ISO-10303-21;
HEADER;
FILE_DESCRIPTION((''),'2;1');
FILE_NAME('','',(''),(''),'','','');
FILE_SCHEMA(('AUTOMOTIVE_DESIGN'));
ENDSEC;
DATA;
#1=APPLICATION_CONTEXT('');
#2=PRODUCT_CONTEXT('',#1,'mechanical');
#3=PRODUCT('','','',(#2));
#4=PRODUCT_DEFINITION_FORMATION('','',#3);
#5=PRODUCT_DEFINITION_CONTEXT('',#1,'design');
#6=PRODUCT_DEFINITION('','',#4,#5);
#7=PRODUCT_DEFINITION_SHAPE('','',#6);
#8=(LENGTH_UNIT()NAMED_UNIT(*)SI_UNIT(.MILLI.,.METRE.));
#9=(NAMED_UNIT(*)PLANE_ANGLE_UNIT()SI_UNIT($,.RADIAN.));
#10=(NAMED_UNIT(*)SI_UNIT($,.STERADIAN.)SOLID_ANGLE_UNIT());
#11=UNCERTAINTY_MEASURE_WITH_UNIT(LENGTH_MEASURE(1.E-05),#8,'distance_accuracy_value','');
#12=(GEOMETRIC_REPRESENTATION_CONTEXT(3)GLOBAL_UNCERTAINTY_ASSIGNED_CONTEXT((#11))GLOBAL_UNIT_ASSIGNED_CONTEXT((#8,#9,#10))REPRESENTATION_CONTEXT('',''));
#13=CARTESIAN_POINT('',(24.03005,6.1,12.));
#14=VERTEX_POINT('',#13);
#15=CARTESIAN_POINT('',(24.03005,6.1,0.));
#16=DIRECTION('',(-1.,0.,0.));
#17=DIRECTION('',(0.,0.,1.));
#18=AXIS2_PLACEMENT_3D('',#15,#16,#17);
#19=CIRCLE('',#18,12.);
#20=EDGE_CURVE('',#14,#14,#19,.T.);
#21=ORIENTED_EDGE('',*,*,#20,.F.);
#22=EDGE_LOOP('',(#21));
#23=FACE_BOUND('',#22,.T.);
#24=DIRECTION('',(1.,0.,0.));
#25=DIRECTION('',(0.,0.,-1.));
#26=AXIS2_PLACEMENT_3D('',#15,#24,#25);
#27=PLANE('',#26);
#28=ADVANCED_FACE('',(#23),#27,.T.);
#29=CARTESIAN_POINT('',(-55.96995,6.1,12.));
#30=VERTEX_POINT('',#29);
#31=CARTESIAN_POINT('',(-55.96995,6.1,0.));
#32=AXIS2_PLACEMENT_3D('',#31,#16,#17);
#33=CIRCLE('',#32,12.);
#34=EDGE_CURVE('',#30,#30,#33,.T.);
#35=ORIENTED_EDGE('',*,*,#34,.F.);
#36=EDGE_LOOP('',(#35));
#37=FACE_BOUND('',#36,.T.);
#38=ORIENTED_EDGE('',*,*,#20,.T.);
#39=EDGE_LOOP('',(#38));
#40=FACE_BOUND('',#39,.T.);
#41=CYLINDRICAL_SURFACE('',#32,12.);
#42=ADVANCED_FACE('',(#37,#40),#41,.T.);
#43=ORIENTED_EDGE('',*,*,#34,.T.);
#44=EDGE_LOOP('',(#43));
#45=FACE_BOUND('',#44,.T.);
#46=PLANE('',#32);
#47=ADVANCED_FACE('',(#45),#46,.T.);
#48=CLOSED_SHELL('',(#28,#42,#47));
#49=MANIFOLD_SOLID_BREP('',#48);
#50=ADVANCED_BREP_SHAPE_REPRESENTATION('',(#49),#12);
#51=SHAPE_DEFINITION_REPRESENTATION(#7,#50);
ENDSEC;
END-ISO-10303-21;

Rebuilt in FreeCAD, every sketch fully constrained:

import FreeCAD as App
import Part
import Sketcher

V = App.Vector
Q = App.Units.Quantity


def add_polygon(sketch, points):
    """Adds a closed chain of lines whose ends are joined by coincident constraints."""
    first, n = sketch.GeometryCount, len(points)
    for a, b in zip(points, points[1:] + points[:1]):
        sketch.addGeometry(Part.LineSegment(App.Vector(*a, 0), App.Vector(*b, 0)), False)
    for i in range(n):
        sketch.addConstraint(Sketcher.Constraint("Coincident", first + i, 2, first + (i + 1) % n, 1))

doc = App.newDocument("Part")
params = doc.addObject("Spreadsheet::Sheet", "Params")
for row, (alias, value) in enumerate([
    ("sketch1_width", "80 mm"),
    ("sketch1_height", "12 mm"),
    ("revolution_angle", "360 deg"),
], start=1):
    params.set(f"A{row}", alias)
    params.set(f"B{row}", "=" + value)
    params.setAlias(f"B{row}", alias)

body = doc.addObject("PartDesign::Body", "Body")

# Sketch on XY plane
sketch1 = doc.addObject("Sketcher::SketchObject", "Sketch")
body.addObject(sketch1)
sketch1.AttachmentSupport = (doc.XY_Plane, [""])
sketch1.MapMode = "FlatFace"
add_polygon(sketch1, [(-56, 6), (-56, -6), (24, -6), (24, 6)])  # lines 0-3
sketch1.addGeometry(Part.LineSegment(V(-56, 6, 0), V(24, 6, 0)), True)  # axis
sketch1.addConstraint([
    Sketcher.Constraint("Vertical", 0),
    Sketcher.Constraint("Horizontal", 1),
    Sketcher.Constraint("Vertical", 2),
    Sketcher.Constraint("Horizontal", 3),
    Sketcher.Constraint("Horizontal", 4),
    Sketcher.Constraint("Coincident", 4, 1, 3, 2),
    Sketcher.Constraint("Vertical", 1, 2, 4, 2),
    Sketcher.Constraint("DistanceX", 1, 1, 1, 2, Q("80 mm")),
    Sketcher.Constraint("DistanceY", 0, 2, 0, 1, Q("12 mm")),
    Sketcher.Constraint("DistanceY", 0, 2, -1, 1, Q("5.9 mm")),
    Sketcher.Constraint("DistanceX", 0, 2, -1, 1, Q("55.96995 mm")),
])
sketch1.setExpression("Constraints[11]", "Params.sketch1_width")
sketch1.setExpression("Constraints[12]", "Params.sketch1_height")
revolution = doc.addObject("PartDesign::Revolution", "Revolution")
body.addObject(revolution)
revolution.Profile = sketch1
revolution.ReferenceAxis = (sketch1, ["Axis0"])
revolution.setExpression("Angle", "Params.revolution_angle")

doc.recompute()
